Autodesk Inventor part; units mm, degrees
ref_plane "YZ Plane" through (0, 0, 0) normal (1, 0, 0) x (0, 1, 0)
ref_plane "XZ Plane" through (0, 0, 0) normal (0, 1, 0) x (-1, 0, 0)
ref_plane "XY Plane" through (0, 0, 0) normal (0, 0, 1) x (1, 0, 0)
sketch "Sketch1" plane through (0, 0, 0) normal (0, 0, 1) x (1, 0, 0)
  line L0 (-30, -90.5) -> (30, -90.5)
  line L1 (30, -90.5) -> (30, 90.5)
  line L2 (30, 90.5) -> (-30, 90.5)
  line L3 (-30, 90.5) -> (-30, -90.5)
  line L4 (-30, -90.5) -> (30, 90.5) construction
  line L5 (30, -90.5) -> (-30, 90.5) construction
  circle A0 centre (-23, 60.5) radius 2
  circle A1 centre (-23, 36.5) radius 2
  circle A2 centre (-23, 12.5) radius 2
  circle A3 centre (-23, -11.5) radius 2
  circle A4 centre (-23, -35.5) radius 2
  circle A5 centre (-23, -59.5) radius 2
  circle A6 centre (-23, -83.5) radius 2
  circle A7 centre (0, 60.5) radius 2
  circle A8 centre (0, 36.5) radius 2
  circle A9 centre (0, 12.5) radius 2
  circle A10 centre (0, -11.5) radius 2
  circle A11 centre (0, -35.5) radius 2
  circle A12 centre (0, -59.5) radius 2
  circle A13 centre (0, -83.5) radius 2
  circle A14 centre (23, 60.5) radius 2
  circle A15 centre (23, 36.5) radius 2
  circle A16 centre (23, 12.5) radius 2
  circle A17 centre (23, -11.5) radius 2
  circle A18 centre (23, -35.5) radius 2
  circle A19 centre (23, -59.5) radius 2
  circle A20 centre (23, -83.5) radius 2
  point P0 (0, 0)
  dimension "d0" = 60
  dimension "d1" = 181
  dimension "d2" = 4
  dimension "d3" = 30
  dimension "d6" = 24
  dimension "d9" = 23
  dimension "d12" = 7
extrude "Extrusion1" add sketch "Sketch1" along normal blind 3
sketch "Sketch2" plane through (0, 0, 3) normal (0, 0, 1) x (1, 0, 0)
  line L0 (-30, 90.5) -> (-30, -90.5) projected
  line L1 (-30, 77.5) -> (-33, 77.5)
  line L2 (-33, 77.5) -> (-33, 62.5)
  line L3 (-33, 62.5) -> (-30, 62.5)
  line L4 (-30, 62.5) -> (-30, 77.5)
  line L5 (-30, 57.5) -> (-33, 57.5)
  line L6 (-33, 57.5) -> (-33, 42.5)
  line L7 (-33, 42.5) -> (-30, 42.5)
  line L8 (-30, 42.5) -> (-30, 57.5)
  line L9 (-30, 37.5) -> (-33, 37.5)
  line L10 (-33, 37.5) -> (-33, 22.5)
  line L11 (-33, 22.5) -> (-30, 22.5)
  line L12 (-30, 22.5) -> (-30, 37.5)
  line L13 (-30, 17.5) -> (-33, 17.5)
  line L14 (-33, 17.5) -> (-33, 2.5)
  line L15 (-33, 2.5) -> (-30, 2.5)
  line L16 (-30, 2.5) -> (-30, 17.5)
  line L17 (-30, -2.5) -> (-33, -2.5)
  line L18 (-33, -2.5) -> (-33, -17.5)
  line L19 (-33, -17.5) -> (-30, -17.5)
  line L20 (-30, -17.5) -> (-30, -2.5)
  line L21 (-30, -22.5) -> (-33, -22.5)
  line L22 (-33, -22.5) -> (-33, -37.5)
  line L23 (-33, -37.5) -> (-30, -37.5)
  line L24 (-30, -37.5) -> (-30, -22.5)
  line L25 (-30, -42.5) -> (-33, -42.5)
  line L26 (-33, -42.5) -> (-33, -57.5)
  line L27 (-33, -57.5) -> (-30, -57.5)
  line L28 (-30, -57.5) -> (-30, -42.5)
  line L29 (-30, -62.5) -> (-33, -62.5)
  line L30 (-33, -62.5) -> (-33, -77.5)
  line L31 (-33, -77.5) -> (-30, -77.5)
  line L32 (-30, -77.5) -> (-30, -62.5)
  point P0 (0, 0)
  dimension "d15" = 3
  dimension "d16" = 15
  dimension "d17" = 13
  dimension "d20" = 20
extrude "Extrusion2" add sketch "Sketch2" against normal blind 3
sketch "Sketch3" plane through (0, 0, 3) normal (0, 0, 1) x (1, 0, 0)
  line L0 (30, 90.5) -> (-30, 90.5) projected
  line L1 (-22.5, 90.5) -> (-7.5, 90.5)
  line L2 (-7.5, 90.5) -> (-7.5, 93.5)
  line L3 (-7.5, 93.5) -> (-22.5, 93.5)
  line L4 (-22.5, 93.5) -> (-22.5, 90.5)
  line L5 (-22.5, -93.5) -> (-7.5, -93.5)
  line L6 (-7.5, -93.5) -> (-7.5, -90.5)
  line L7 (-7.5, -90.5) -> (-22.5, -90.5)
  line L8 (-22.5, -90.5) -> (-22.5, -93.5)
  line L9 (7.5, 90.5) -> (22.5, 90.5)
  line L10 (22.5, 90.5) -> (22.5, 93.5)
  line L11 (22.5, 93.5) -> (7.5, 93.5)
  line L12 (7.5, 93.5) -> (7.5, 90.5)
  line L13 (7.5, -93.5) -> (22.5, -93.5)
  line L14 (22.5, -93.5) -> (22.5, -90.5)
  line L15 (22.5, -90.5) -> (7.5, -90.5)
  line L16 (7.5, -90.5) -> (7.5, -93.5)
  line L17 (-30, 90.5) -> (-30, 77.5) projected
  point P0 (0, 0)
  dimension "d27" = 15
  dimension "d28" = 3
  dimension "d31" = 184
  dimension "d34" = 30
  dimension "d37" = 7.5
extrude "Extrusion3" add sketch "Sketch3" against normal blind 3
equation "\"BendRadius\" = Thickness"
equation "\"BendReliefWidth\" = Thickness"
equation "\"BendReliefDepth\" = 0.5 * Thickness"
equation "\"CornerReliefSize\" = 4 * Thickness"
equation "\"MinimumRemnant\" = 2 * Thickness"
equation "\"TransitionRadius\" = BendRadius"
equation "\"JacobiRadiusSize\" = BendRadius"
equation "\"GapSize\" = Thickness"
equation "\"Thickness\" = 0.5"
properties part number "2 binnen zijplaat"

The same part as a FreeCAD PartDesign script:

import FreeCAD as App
import Part
import Sketcher
from FreeCAD import Vector


def add_polygon(sketch, points):
    """Adds a closed chain of lines whose ends are joined by coincident constraints."""
    first, n = sketch.GeometryCount, len(points)
    for a, b in zip(points, points[1:] + points[:1]):
        sketch.addGeometry(Part.LineSegment(App.Vector(*a, 0), App.Vector(*b, 0)), False)
    for i in range(n):
        sketch.addConstraint(Sketcher.Constraint("Coincident", first + i, 2, first + (i + 1) % n, 1))

doc = App.newDocument("Part")
body = doc.addObject("PartDesign::Body", "Body")

# Sketch on XY plane
sketch1 = doc.addObject("Sketcher::SketchObject", "Sketch")
body.addObject(sketch1)
sketch1.AttachmentSupport = (doc.XY_Plane, [""])
sketch1.MapMode = "FlatFace"
add_polygon(sketch1, [(-30, 90.5), (-30, -90.5), (30, -90.5), (30, 90.5)])  # lines 0-3
sketch1.addGeometry(Part.Circle(Vector(-23, -83.5, 0), Vector(0, 0, 1), 2), False)  # 4
sketch1.addGeometry(Part.Circle(Vector(-23, -59.5, 0), Vector(0, 0, 1), 2), False)  # 5
sketch1.addGeometry(Part.Circle(Vector(-23, -35.5, 0), Vector(0, 0, 1), 2), False)  # 6
sketch1.addGeometry(Part.Circle(Vector(-23, -11.5, 0), Vector(0, 0, 1), 2), False)  # 7
sketch1.addGeometry(Part.Circle(Vector(0, -83.5, 0), Vector(0, 0, 1), 2), False)  # 8
sketch1.addGeometry(Part.Circle(Vector(0, -59.5, 0), Vector(0, 0, 1), 2), False)  # 9
sketch1.addGeometry(Part.Circle(Vector(23, -83.5, 0), Vector(0, 0, 1), 2), False)  # 10
sketch1.addGeometry(Part.Circle(Vector(23, -59.5, 0), Vector(0, 0, 1), 2), False)  # 11
sketch1.addGeometry(Part.Circle(Vector(0, -35.5, 0), Vector(0, 0, 1), 2), False)  # 12
sketch1.addGeometry(Part.Circle(Vector(0, -11.5, 0), Vector(0, 0, 1), 2), False)  # 13
sketch1.addGeometry(Part.Circle(Vector(23, -35.5, 0), Vector(0, 0, 1), 2), False)  # 14
sketch1.addGeometry(Part.Circle(Vector(23, -11.5, 0), Vector(0, 0, 1), 2), False)  # 15
sketch1.addGeometry(Part.Circle(Vector(-23, 12.5, 0), Vector(0, 0, 1), 2), False)  # 16
sketch1.addGeometry(Part.Circle(Vector(-23, 36.5, 0), Vector(0, 0, 1), 2), False)  # 17
sketch1.addGeometry(Part.Circle(Vector(-23, 60.5, 0), Vector(0, 0, 1), 2), False)  # 18
sketch1.addGeometry(Part.Circle(Vector(0, 12.5, 0), Vector(0, 0, 1), 2), False)  # 19
sketch1.addGeometry(Part.Circle(Vector(0, 36.5, 0), Vector(0, 0, 1), 2), False)  # 20
sketch1.addGeometry(Part.Circle(Vector(23, 12.5, 0), Vector(0, 0, 1), 2), False)  # 21
sketch1.addGeometry(Part.Circle(Vector(23, 36.5, 0), Vector(0, 0, 1), 2), False)  # 22
sketch1.addGeometry(Part.Circle(Vector(0, 60.5, 0), Vector(0, 0, 1), 2), False)  # 23
sketch1.addGeometry(Part.Circle(Vector(23, 60.5, 0), Vector(0, 0, 1), 2), False)  # 24
sketch1.addConstraint(Sketcher.Constraint("Vertical", 0))
sketch1.addConstraint(Sketcher.Constraint("Horizontal", 1))
sketch1.addConstraint(Sketcher.Constraint("Vertical", 2))
sketch1.addConstraint(Sketcher.Constraint("Horizontal", 3))
sketch1.addConstraint(Sketcher.Constraint("Equal", 4, 5))
sketch1.addConstraint(Sketcher.Constraint("Equal", 5, 6))
sketch1.addConstraint(Sketcher.Constraint("Equal", 6, 7))
sketch1.addConstraint(Sketcher.Constraint("Equal", 7, 8))
sketch1.addConstraint(Sketcher.Constraint("Equal", 8, 9))
sketch1.addConstraint(Sketcher.Constraint("Equal", 9, 10))
sketch1.addConstraint(Sketcher.Constraint("Equal", 10, 11))
sketch1.addConstraint(Sketcher.Constraint("Equal", 11, 12))
sketch1.addConstraint(Sketcher.Constraint("Equal", 12, 13))
sketch1.addConstraint(Sketcher.Constraint("Equal", 13, 14))
sketch1.addConstraint(Sketcher.Constraint("Equal", 14, 15))
sketch1.addConstraint(Sketcher.Constraint("Equal", 15, 16))
sketch1.addConstraint(Sketcher.Constraint("Equal", 16, 17))
sketch1.addConstraint(Sketcher.Constraint("Equal", 17, 18))
sketch1.addConstraint(Sketcher.Constraint("Equal", 18, 19))
sketch1.addConstraint(Sketcher.Constraint("Equal", 19, 20))
sketch1.addConstraint(Sketcher.Constraint("Equal", 20, 21))
sketch1.addConstraint(Sketcher.Constraint("Equal", 21, 22))
sketch1.addConstraint(Sketcher.Constraint("Equal", 22, 23))
sketch1.addConstraint(Sketcher.Constraint("Equal", 23, 24))
sketch1.addConstraint(Sketcher.Constraint("Symmetric", 0, 2, 2, 2, -1, 1))
sketch1.addConstraint(Sketcher.Constraint("Symmetric", 4, 3, 10, 3, -2))
sketch1.addConstraint(Sketcher.Constraint("Symmetric", 5, 3, 11, 3, -2))
sketch1.addConstraint(Sketcher.Constraint("Symmetric", 6, 3, 14, 3, -2))
sketch1.addConstraint(Sketcher.Constraint("Symmetric", 7, 3, 15, 3, -2))
sketch1.addConstraint(Sketcher.Constraint("Symmetric", 16, 3, 21, 3, -2))
sketch1.addConstraint(Sketcher.Constraint("Symmetric", 17, 3, 22, 3, -2))
sketch1.addConstraint(Sketcher.Constraint("Symmetric", 18, 3, 24, 3, -2))
sketch1.addConstraint(Sketcher.Constraint("PointOnObject", 8, 3, -2))
sketch1.addConstraint(Sketcher.Constraint("PointOnObject", 9, 3, -2))
sketch1.addConstraint(Sketcher.Constraint("PointOnObject", 12, 3, -2))
sketch1.addConstraint(Sketcher.Constraint("PointOnObject", 13, 3, -2))
sketch1.addConstraint(Sketcher.Constraint("PointOnObject", 19, 3, -2))
sketch1.addConstraint(Sketcher.Constraint("PointOnObject", 20, 3, -2))
sketch1.addConstraint(Sketcher.Constraint("PointOnObject", 23, 3, -2))
sketch1.addConstraint(Sketcher.Constraint("Horizontal", 4, 3, 8, 3))
sketch1.addConstraint(Sketcher.Constraint("Horizontal", 5, 3, 9, 3))
sketch1.addConstraint(Sketcher.Constraint("Horizontal", 6, 3, 12, 3))
sketch1.addConstraint(Sketcher.Constraint("Horizontal", 7, 3, 13, 3))
sketch1.addConstraint(Sketcher.Constraint("Horizontal", 16, 3, 19, 3))
sketch1.addConstraint(Sketcher.Constraint("Horizontal", 17, 3, 20, 3))
sketch1.addConstraint(Sketcher.Constraint("Horizontal", 18, 3, 23, 3))
sketch1.addConstraint(Sketcher.Constraint("Vertical", 4, 3, 5, 3))
sketch1.addConstraint(Sketcher.Constraint("Vertical", 5, 3, 6, 3))
sketch1.addConstraint(Sketcher.Constraint("Vertical", 6, 3, 7, 3))
sketch1.addConstraint(Sketcher.Constraint("Vertical", 7, 3, 16, 3))
sketch1.addConstraint(Sketcher.Constraint("Vertical", 16, 3, 17, 3))
sketch1.addConstraint(Sketcher.Constraint("Vertical", 17, 3, 18, 3))
sketch1.addConstraint(Sketcher.Constraint("Diameter", 4, 4.0))
sketch1.addConstraint(Sketcher.Constraint("DistanceX", 1, 1, 1, 2, 60.0))
sketch1.addConstraint(Sketcher.Constraint("DistanceY", 0, 2, 0, 1, 181.0))
sketch1.addConstraint(Sketcher.Constraint("DistanceX", 4, 3, -1, 1, 23.0))
sketch1.addConstraint(Sketcher.Constraint("DistanceY", 4, 3, 5, 3, 24.0))
sketch1.addConstraint(Sketcher.Constraint("DistanceY", 5, 3, 6, 3, 24.0))
sketch1.addConstraint(Sketcher.Constraint("DistanceY", 6, 3, 7, 3, 24.0))
sketch1.addConstraint(Sketcher.Constraint("DistanceY", 7, 3, 16, 3, 24.0))
sketch1.addConstraint(Sketcher.Constraint("DistanceY", 16, 3, 17, 3, 24.0))
sketch1.addConstraint(Sketcher.Constraint("DistanceY", 17, 3, 18, 3, 24.0))
sketch1.addConstraint(Sketcher.Constraint("DistanceY", 0, 2, 4, 3, 7.0))
pad1 = doc.addObject("PartDesign::Pad", "Pad")
body.addObject(pad1)
pad1.Profile = sketch1
pad1.Length = 3

# Sketch on XY plane
sketch2 = doc.addObject("Sketcher::SketchObject", "Sketch001")
body.addObject(sketch2)
sketch2.AttachmentSupport = (doc.XY_Plane, [""])
sketch2.MapMode = "FlatFace"
sketch2.AttachmentOffset = App.Placement(Vector(0, 0, 3), App.Rotation())
add_polygon(sketch2, [(-30, -77.5), (-30, -62.5), (-33, -62.5), (-33, -77.5)])  # lines 0-3
add_polygon(sketch2, [(-30, -57.5), (-30, -42.5), (-33, -42.5), (-33, -57.5)])  # lines 4-7
add_polygon(sketch2, [(-30, -37.5), (-30, -22.5), (-33, -22.5), (-33, -37.5)])  # lines 8-11
add_polygon(sketch2, [(-30, -17.5), (-30, -2.5), (-33, -2.5), (-33, -17.5)])  # lines 12-15
add_polygon(sketch2, [(-30, 2.5), (-30, 17.5), (-33, 17.5), (-33, 2.5)])  # lines 16-19
add_polygon(sketch2, [(-30, 22.5), (-30, 37.5), (-33, 37.5), (-33, 22.5)])  # lines 20-23
add_polygon(sketch2, [(-30, 42.5), (-30, 57.5), (-33, 57.5), (-33, 42.5)])  # lines 24-27
add_polygon(sketch2, [(-30, 62.5), (-30, 77.5), (-33, 77.5), (-33, 62.5)])  # lines 28-31
sketch2.addConstraint(Sketcher.Constraint("Vertical", 0))
sketch2.addConstraint(Sketcher.Constraint("Horizontal", 1))
sketch2.addConstraint(Sketcher.Constraint("Vertical", 2))
sketch2.addConstraint(Sketcher.Constraint("Horizontal", 3))
sketch2.addConstraint(Sketcher.Constraint("Vertical", 4))
sketch2.addConstraint(Sketcher.Constraint("Horizontal", 5))
sketch2.addConstraint(Sketcher.Constraint("Vertical", 6))
sketch2.addConstraint(Sketcher.Constraint("Horizontal", 7))
sketch2.addConstraint(Sketcher.Constraint("Vertical", 8))
sketch2.addConstraint(Sketcher.Constraint("Horizontal", 9))
sketch2.addConstraint(Sketcher.Constraint("Vertical", 10))
sketch2.addConstraint(Sketcher.Constraint("Horizontal", 11))
sketch2.addConstraint(Sketcher.Constraint("Vertical", 12))
sketch2.addConstraint(Sketcher.Constraint("Horizontal", 13))
sketch2.addConstraint(Sketcher.Constraint("Vertical", 14))
sketch2.addConstraint(Sketcher.Constraint("Horizontal", 15))
sketch2.addConstraint(Sketcher.Constraint("Vertical", 16))
sketch2.addConstraint(Sketcher.Constraint("Horizontal", 17))
sketch2.addConstraint(Sketcher.Constraint("Vertical", 18))
sketch2.addConstraint(Sketcher.Constraint("Horizontal", 19))
sketch2.addConstraint(Sketcher.Constraint("Vertical", 20))
sketch2.addConstraint(Sketcher.Constraint("Horizontal", 21))
sketch2.addConstraint(Sketcher.Constraint("Vertical", 22))
sketch2.addConstraint(Sketcher.Constraint("Horizontal", 23))
sketch2.addConstraint(Sketcher.Constraint("Vertical", 24))
sketch2.addConstraint(Sketcher.Constraint("Horizontal", 25))
sketch2.addConstraint(Sketcher.Constraint("Vertical", 26))
sketch2.addConstraint(Sketcher.Constraint("Horizontal", 27))
sketch2.addConstraint(Sketcher.Constraint("Vertical", 28))
sketch2.addConstraint(Sketcher.Constraint("Horizontal", 29))
sketch2.addConstraint(Sketcher.Constraint("Vertical", 30))
sketch2.addConstraint(Sketcher.Constraint("Horizontal", 31))
sketch2.addConstraint(Sketcher.Constraint("Symmetric", 15, 2, 16, 2, -1))
sketch2.addConstraint(Sketcher.Constraint("Symmetric", 13, 2, 18, 2, -1))
sketch2.addConstraint(Sketcher.Constraint("Symmetric", 11, 2, 20, 2, -1))
sketch2.addConstraint(Sketcher.Constraint("Symmetric", 9, 2, 22, 2, -1))
sketch2.addConstraint(Sketcher.Constraint("Symmetric", 7, 2, 24, 2, -1))
sketch2.addConstraint(Sketcher.Constraint("Symmetric", 5, 2, 26, 2, -1))
sketch2.addConstraint(Sketcher.Constraint("Symmetric", 3, 2, 28, 2, -1))
sketch2.addConstraint(Sketcher.Constraint("Symmetric", 1, 2, 30, 2, -1))
sketch2.addConstraint(Sketcher.Constraint("Vertical", 3, 2, 4, 2))
sketch2.addConstraint(Sketcher.Constraint("Vertical", 2, 2, 5, 2))
sketch2.addConstraint(Sketcher.Constraint("Vertical", 7, 2, 8, 2))
sketch2.addConstraint(Sketcher.Constraint("Vertical", 6, 2, 9, 2))
sketch2.addConstraint(Sketcher.Constraint("Vertical", 11, 2, 12, 2))
sketch2.addConstraint(Sketcher.Constraint("Vertical", 10, 2, 13, 2))
sketch2.addConstraint(Sketcher.Constraint("Equal", 2, 4))
sketch2.addConstraint(Sketcher.Constraint("Equal", 6, 8))
sketch2.addConstraint(Sketcher.Constraint("Equal", 10, 12))
sketch2.addConstraint(Sketcher.Constraint("DistanceX", 1, 2, 1, 1, 3.0))
sketch2.addConstraint(Sketcher.Constraint("DistanceY", 0, 1, 0, 2, 15.0))
sketch2.addConstraint(Sketcher.Constraint("DistanceY", 0, 2, 4, 2, 20.0))
sketch2.addConstraint(Sketcher.Constraint("DistanceY", 4, 2, 8, 2, 20.0))
sketch2.addConstraint(Sketcher.Constraint("DistanceY", 8, 2, 12, 2, 20.0))
sketch2.addConstraint(Sketcher.Constraint("DistanceY", 12, 2, 16, 2, 20.0))
sketch2.addConstraint(Sketcher.Constraint("DistanceX", 0, 2, -1, 1, 30.0))
pad2 = doc.addObject("PartDesign::Pad", "Pad001")
body.addObject(pad2)
pad2.Profile = sketch2
pad2.Length = 3
pad2.Reversed = True

# Sketch on XY plane
sketch3 = doc.addObject("Sketcher::SketchObject", "Sketch002")
body.addObject(sketch3)
sketch3.AttachmentSupport = (doc.XY_Plane, [""])
sketch3.MapMode = "FlatFace"
sketch3.AttachmentOffset = App.Placement(Vector(0, 0, 3), App.Rotation())
add_polygon(sketch3, [(-22.5, 90.5), (-7.5, 90.5), (-7.5, 93.5), (-22.5, 93.5)])  # lines 0-3
add_polygon(sketch3, [(7.5, 90.5), (22.5, 90.5), (22.5, 93.5), (7.5, 93.5)])  # lines 4-7
add_polygon(sketch3, [(-22.5, -90.5), (-22.5, -93.5), (-7.5, -93.5), (-7.5, -90.5)])  # lines 8-11
add_polygon(sketch3, [(7.5, -90.5), (7.5, -93.5), (22.5, -93.5), (22.5, -90.5)])  # lines 12-15
sketch3.addConstraint(Sketcher.Constraint("Horizontal", 0))
sketch3.addConstraint(Sketcher.Constraint("Vertical", 1))
sketch3.addConstraint(Sketcher.Constraint("Horizontal", 2))
sketch3.addConstraint(Sketcher.Constraint("Vertical", 3))
sketch3.addConstraint(Sketcher.Constraint("Horizontal", 4))
sketch3.addConstraint(Sketcher.Constraint("Vertical", 5))
sketch3.addConstraint(Sketcher.Constraint("Horizontal", 6))
sketch3.addConstraint(Sketcher.Constraint("Vertical", 7))
sketch3.addConstraint(Sketcher.Constraint("Vertical", 8))
sketch3.addConstraint(Sketcher.Constraint("Horizontal", 9))
sketch3.addConstraint(Sketcher.Constraint("Vertical", 10))
sketch3.addConstraint(Sketcher.Constraint("Horizontal", 11))
sketch3.addConstraint(Sketcher.Constraint("Vertical", 12))
sketch3.addConstraint(Sketcher.Constraint("Horizontal", 13))
sketch3.addConstraint(Sketcher.Constraint("Vertical", 14))
sketch3.addConstraint(Sketcher.Constraint("Horizontal", 15))
sketch3.addConstraint(Sketcher.Constraint("Symmetric", 5, 2, 8, 2, -1, 1))
sketch3.addConstraint(Sketcher.Constraint("Symmetric", 7, 2, 10, 2, -1, 1))
sketch3.addConstraint(Sketcher.Constraint("Symmetric", 1, 2, 12, 2, -1, 1))
sketch3.addConstraint(Sketcher.Constraint("Symmetric", 3, 2, 14, 2, -1, 1))
sketch3.addConstraint(Sketcher.Constraint("Symmetric", 3, 2, 4, 2, -2))
sketch3.addConstraint(Sketcher.Constraint("Symmetric", 1, 2, 6, 2, -2))
sketch3.addConstraint(Sketcher.Constraint("DistanceX", 0, 1, 0, 2, 15.0))
sketch3.addConstraint(Sketcher.Constraint("DistanceY", 1, 1, 1, 2, 3.0))
sketch3.addConstraint(Sketcher.Constraint("DistanceX", 0, 2, 4, 2, 30.0))
sketch3.addConstraint(Sketcher.Constraint("DistanceY", 8, 2, 3, 2, 184.0))
pad3 = doc.addObject("PartDesign::Pad", "Pad002")
body.addObject(pad3)
pad3.Profile = sketch3
pad3.Length = 3
pad3.Reversed = True

doc.recompute()
